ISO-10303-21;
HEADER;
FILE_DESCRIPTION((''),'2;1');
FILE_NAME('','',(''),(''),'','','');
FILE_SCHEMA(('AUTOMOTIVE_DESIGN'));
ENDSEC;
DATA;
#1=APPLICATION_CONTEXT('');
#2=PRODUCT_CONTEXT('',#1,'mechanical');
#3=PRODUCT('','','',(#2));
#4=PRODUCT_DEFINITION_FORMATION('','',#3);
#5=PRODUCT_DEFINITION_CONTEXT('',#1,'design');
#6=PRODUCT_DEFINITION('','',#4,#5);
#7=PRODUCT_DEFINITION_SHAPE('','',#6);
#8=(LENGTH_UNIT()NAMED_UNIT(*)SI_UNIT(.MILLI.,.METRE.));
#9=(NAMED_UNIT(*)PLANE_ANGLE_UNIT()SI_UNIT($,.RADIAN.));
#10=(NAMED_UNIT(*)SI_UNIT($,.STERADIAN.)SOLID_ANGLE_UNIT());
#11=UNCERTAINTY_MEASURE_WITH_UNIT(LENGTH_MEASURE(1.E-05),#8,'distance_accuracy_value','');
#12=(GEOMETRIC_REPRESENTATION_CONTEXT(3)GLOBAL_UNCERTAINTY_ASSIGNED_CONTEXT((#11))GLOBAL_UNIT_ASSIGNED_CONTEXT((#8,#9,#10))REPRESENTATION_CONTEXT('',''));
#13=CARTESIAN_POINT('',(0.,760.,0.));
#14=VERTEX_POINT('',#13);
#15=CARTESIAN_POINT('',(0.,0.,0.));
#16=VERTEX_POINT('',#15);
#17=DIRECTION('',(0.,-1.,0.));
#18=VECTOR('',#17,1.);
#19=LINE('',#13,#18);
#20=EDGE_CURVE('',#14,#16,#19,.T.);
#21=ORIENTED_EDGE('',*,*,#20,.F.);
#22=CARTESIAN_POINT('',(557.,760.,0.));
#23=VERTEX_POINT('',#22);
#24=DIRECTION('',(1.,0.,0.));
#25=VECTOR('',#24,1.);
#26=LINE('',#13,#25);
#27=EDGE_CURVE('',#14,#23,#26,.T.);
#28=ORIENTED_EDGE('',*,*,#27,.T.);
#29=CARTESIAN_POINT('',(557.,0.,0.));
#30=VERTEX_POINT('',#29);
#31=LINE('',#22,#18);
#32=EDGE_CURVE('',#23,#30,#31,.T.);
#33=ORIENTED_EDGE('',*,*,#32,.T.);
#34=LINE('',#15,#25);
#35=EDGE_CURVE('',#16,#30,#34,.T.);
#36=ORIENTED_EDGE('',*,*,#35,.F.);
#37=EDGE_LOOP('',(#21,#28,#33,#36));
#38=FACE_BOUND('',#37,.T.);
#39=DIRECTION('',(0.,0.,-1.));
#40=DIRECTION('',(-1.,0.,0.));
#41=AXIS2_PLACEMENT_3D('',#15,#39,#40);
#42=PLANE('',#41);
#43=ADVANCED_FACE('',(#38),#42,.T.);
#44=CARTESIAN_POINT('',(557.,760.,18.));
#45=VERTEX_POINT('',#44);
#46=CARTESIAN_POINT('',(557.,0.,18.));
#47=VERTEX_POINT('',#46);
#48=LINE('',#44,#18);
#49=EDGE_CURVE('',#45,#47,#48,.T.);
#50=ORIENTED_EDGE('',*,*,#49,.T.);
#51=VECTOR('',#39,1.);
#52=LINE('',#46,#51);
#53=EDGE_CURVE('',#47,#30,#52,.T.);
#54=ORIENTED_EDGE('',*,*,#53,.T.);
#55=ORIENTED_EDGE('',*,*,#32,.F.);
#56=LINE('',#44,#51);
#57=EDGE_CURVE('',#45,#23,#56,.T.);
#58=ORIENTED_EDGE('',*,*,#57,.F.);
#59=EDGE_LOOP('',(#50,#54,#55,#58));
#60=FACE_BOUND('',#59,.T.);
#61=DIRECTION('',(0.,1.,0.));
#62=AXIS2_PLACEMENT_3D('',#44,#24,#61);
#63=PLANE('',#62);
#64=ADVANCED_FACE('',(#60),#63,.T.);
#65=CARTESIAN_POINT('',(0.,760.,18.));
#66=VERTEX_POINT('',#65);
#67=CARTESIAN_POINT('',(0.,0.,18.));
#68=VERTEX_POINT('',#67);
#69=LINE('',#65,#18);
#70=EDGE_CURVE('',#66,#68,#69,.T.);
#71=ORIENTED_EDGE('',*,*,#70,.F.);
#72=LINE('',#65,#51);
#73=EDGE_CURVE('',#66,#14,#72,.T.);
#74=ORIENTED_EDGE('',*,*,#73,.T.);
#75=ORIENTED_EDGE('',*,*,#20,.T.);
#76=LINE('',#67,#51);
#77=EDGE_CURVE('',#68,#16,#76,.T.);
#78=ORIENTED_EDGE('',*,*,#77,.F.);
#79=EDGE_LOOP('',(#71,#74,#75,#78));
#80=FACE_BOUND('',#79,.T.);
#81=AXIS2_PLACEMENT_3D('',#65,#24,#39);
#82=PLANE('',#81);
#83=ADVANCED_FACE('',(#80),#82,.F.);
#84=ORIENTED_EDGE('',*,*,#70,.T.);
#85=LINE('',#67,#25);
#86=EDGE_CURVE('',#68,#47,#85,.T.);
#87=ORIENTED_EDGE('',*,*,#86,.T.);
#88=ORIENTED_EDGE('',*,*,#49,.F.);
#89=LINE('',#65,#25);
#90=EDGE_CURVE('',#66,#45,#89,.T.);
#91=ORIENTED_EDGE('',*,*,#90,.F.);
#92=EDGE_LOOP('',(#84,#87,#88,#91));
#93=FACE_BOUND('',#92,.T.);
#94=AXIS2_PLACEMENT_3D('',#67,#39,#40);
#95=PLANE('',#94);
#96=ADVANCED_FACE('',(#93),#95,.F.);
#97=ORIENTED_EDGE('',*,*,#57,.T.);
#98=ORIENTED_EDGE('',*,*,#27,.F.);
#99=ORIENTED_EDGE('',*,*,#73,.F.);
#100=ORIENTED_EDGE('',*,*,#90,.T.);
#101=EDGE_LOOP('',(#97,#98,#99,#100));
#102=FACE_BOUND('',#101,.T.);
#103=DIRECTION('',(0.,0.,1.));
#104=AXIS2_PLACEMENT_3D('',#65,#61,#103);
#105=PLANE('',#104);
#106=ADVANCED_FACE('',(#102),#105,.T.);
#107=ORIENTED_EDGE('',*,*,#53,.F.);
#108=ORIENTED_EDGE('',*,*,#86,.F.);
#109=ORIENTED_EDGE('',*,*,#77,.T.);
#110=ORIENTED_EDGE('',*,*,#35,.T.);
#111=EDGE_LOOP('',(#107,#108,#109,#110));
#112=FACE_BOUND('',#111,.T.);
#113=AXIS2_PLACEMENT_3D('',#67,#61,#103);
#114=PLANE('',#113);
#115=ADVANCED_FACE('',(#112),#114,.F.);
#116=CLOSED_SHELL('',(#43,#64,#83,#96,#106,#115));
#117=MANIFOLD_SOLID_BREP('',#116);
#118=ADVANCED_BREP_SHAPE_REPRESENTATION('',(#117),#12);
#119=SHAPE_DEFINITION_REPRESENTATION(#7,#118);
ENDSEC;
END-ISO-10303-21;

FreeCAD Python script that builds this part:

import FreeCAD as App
import Part
import Sketcher

V = App.Vector


def add_polygon(sketch, points):
    """Adds a closed chain of lines whose ends are joined by coincident constraints."""
    first, n = sketch.GeometryCount, len(points)
    for a, b in zip(points, points[1:] + points[:1]):
        sketch.addGeometry(Part.LineSegment(App.Vector(*a, 0), App.Vector(*b, 0)), False)
    for i in range(n):
        sketch.addConstraint(Sketcher.Constraint("Coincident", first + i, 2, first + (i + 1) % n, 1))

doc = App.newDocument("Part")
body = doc.addObject("PartDesign::Body", "Body")

sketch1 = doc.addObject("Sketcher::SketchObject", "Sketch")
body.addObject(sketch1)
sketch1.AttachmentSupport = (doc.XY_Plane, [""])
sketch1.MapMode = "FlatFace"
add_polygon(sketch1, [(0, 760), (0, 0), (557, 0), (557, 760)])
sketch1.addConstraint(Sketcher.Constraint("Vertical", 0))
sketch1.addConstraint(Sketcher.Constraint("Horizontal", 1))
sketch1.addConstraint(Sketcher.Constraint("Vertical", 2))
sketch1.addConstraint(Sketcher.Constraint("Horizontal", 3))
sketch1.addConstraint(Sketcher.Constraint("Coincident", 0, 2, -1, 1))
sketch1.addConstraint(Sketcher.Constraint("DistanceX", 1, 1, 1, 2, 557.0))
sketch1.addConstraint(Sketcher.Constraint("DistanceY", 0, 2, 0, 1, 760.0))
pad1 = doc.addObject("PartDesign::Pad", "Pad")
body.addObject(pad1)
pad1.Profile = sketch1
pad1.Length = 18

doc.recompute()
